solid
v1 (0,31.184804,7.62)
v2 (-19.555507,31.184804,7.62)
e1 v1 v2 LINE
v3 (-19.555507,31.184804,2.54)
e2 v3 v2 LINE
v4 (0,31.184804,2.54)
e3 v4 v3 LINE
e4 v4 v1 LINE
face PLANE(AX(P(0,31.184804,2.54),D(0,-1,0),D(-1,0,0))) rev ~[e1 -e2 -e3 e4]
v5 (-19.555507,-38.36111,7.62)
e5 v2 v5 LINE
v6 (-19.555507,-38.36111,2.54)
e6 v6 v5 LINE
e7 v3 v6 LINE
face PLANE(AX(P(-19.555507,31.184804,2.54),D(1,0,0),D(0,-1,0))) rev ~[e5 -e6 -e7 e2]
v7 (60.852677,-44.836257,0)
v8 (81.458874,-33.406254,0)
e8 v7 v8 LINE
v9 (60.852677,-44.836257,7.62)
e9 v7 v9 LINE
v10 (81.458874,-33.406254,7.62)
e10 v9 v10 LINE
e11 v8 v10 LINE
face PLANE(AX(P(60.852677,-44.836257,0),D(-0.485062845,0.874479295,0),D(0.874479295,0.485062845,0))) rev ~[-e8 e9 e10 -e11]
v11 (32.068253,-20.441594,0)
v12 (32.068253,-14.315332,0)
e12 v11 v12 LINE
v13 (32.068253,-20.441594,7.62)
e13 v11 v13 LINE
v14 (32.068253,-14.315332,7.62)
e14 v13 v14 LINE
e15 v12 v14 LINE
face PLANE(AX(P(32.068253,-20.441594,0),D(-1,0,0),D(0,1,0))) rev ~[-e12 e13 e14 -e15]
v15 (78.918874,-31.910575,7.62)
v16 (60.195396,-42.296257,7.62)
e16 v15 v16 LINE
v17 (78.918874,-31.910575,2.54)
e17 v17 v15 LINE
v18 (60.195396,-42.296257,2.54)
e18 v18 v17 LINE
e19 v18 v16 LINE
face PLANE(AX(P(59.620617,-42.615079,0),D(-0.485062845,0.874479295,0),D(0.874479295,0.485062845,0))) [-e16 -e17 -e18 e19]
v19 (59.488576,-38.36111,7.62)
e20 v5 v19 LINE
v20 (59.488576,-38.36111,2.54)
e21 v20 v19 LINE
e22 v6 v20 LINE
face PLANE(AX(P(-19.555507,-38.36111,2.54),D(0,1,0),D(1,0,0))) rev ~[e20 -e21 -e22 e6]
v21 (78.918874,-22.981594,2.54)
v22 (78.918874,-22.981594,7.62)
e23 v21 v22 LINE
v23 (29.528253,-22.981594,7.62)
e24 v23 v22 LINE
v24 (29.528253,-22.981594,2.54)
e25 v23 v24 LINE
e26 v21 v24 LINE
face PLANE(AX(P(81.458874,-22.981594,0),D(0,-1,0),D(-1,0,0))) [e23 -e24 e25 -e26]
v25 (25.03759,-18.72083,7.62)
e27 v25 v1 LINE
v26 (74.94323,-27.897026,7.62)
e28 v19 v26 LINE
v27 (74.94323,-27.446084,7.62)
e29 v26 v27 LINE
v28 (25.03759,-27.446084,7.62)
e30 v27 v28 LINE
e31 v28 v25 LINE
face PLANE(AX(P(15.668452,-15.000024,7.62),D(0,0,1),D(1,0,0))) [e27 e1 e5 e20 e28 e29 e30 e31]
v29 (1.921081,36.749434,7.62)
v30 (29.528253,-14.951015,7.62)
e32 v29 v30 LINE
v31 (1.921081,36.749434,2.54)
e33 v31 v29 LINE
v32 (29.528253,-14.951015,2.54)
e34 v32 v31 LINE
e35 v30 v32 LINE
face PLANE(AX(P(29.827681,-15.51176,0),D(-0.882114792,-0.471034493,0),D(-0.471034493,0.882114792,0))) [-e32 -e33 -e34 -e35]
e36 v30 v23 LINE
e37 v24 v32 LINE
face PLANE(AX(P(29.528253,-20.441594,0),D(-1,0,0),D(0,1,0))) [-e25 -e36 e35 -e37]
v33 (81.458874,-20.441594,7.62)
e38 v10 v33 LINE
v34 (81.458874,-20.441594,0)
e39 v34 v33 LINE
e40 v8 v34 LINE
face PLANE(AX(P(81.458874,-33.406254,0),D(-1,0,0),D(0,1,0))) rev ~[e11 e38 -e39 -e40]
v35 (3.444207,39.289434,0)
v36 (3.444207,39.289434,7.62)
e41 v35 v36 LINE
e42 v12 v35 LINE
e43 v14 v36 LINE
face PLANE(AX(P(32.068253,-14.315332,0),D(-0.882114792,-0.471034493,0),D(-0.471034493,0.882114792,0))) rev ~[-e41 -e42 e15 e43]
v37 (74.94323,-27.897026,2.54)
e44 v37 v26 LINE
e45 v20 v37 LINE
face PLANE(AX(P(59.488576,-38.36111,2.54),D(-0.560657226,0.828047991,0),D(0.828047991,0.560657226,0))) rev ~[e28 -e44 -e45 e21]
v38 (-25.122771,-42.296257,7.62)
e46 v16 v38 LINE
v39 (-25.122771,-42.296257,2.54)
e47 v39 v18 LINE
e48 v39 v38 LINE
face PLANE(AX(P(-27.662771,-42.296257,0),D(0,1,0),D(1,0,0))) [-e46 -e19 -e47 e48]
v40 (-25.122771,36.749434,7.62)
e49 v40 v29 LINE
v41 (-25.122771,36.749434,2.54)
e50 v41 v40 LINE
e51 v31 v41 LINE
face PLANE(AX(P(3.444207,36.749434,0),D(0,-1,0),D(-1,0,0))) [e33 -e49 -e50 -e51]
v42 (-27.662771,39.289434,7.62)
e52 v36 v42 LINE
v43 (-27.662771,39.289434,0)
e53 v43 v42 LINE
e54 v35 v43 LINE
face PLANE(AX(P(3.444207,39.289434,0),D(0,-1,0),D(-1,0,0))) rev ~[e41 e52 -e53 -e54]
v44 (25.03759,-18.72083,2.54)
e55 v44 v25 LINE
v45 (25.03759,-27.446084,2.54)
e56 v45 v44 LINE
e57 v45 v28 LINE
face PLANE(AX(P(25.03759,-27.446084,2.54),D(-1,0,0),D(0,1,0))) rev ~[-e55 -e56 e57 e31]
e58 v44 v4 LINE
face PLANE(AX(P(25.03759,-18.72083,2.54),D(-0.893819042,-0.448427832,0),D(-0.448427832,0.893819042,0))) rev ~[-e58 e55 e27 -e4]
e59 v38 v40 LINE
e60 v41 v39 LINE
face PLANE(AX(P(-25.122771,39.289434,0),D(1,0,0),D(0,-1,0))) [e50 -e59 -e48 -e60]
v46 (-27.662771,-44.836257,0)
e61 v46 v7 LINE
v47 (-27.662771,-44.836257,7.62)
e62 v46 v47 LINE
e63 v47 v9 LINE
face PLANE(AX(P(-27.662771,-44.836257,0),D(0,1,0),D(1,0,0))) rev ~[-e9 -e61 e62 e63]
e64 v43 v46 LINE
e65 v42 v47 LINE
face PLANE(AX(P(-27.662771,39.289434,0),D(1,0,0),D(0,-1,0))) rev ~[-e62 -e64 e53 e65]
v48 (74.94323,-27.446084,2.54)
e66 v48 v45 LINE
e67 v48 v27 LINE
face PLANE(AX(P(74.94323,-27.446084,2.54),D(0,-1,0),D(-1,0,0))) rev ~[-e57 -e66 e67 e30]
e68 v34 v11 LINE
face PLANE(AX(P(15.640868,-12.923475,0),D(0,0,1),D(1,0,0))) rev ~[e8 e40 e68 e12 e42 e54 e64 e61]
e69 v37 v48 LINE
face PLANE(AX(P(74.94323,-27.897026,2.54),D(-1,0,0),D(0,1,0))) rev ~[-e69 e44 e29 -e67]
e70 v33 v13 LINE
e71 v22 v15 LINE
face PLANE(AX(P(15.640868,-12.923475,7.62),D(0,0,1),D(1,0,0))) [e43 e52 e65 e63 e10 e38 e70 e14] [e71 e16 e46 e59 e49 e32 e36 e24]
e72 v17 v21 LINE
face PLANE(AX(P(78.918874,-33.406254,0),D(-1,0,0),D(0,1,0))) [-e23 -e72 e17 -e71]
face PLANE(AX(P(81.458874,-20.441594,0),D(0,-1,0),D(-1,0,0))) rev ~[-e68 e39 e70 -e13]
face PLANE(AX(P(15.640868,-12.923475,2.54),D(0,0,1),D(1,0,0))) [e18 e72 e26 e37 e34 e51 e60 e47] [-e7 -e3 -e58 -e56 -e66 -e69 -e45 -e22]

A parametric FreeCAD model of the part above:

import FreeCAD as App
import Part
import Sketcher
from FreeCAD import Vector
Q = App.Units.Quantity


def faces_at(feature, points):
    """Names of the faces that lie closest to the given points."""
    faces = feature.Shape.Faces
    near = lambda p: min(range(len(faces)), key=lambda i: faces[i].distToShape(Part.Vertex(*p))[0])
    return sorted({f"Face{near(p) + 1}" for p in points})

doc = App.newDocument("Part")
body = doc.addObject("PartDesign::Body", "Body")

# Sketch on XY plane
sketch1 = doc.addObject("Sketcher::SketchObject", "Sketch")
body.addObject(sketch1)
sketch1.AttachmentSupport = (doc.XY_Plane, [""])
sketch1.MapMode = "FlatFace"
sketch1.addGeometry([
    Part.LineSegment(Vector(32, -14, 0), Vector(3, 39, 0)),  # 0
    Part.LineSegment(Vector(3, 39, 0), Vector(-28, 39, 0)),  # 1
    Part.LineSegment(Vector(-28, 39, 0), Vector(-28, -45, 0)),  # 2
    Part.LineSegment(Vector(-28, -45, 0), Vector(61, -45, 0)),  # 3
    Part.LineSegment(Vector(61, -45, 0), Vector(81, -33, 0)),  # 4
    Part.LineSegment(Vector(81, -33, 0), Vector(81, -20, 0)),  # 5
    Part.LineSegment(Vector(81, -20, 0), Vector(32, -20, 0)),  # 6
    Part.LineSegment(Vector(32, -20, 0), Vector(32, -14, 0)),  # 7
], False)
sketch1.addConstraint([
    Sketcher.Constraint("Coincident", 0, 2, 1, 1),
    Sketcher.Constraint("Coincident", 1, 2, 2, 1),
    Sketcher.Constraint("Coincident", 2, 2, 3, 1),
    Sketcher.Constraint("Coincident", 3, 2, 4, 1),
    Sketcher.Constraint("Coincident", 4, 2, 5, 1),
    Sketcher.Constraint("Coincident", 5, 2, 6, 1),
    Sketcher.Constraint("Coincident", 6, 2, 7, 1),
    Sketcher.Constraint("Coincident", 7, 2, 0, 1),
    Sketcher.Constraint("Horizontal", 1),
    Sketcher.Constraint("Vertical", 2),
    Sketcher.Constraint("Horizontal", 3),
    Sketcher.Constraint("Vertical", 5),
    Sketcher.Constraint("Horizontal", 6),
    Sketcher.Constraint("Vertical", 7),
    Sketcher.Constraint("DistanceY", 3, 2, 4, 2, Q("0.4500001 in")),
    Sketcher.Constraint("DistanceX", 1, 2, 1, 1, 31.106978),
    Sketcher.Constraint("DistanceX", 6, 2, 6, 1, 49.390621),
    Sketcher.Constraint("DistanceY", 2, 2, 2, 1, 84.12569),
    Sketcher.Constraint("DistanceY", 5, 1, 5, 2, 12.96466),
    Sketcher.Constraint("DistanceY", 7, 1, 7, 2, 6.126261),
    Sketcher.Constraint("Distance", 0, 60.768469),
    Sketcher.Constraint("DistanceX", 3, 1, 3, 2, 88.515447),
    Sketcher.Constraint("DistanceX", 1, 2, -1, 1, 27.662771),
    Sketcher.Constraint("DistanceY", -1, 1, 0, 2, 39.289434),
])
pad1 = doc.addObject("PartDesign::Pad", "Pad")
body.addObject(pad1)
pad1.Profile = sketch1
pad1.Length = Q("0.3 in")
doc.recompute()

thickness = doc.addObject("PartDesign::Thickness", "Thickness")
body.addObject(thickness)
thickness.Base = (pad1, faces_at(pad1, [(5.074, -19.599, 7.62)]))
thickness.Value = Q("0.1 in")
thickness.Reversed = True
thickness.Join = "Intersection"

# Sketch on XY plane
sketch2 = doc.addObject("Sketcher::SketchObject", "Sketch001")
body.addObject(sketch2)
sketch2.AttachmentSupport = (doc.XY_Plane, [""])
sketch2.MapMode = "FlatFace"
sketch2.AttachmentOffset = App.Placement(Vector(0, 0, 0.1 * 25.4), App.Rotation())
sketch2.addGeometry([
    Part.LineSegment(Vector(25.04, -18.72, 0), Vector(0, 31.18, 0)),  # 0
    Part.LineSegment(Vector(0, 31.18, 0), Vector(-19.56, 31.18, 0)),  # 1
    Part.LineSegment(Vector(-19.56, 31.18, 0), Vector(-19.56, -38.36, 0)),  # 2
    Part.LineSegment(Vector(-19.56, -38.36, 0), Vector(59.49, -38.36, 0)),  # 3
    Part.LineSegment(Vector(59.49, -38.36, 0), Vector(74.94, -27.9, 0)),  # 4
    Part.LineSegment(Vector(74.94, -27.9, 0), Vector(74.94, -27.45, 0)),  # 5
    Part.LineSegment(Vector(74.94, -27.45, 0), Vector(25.04, -27.45, 0)),  # 6
    Part.LineSegment(Vector(25.04, -27.45, 0), Vector(25.04, -18.72, 0)),  # 7
], False)
sketch2.addConstraint([
    Sketcher.Constraint("Coincident", 0, 2, 1, 1),
    Sketcher.Constraint("Coincident", 1, 2, 2, 1),
    Sketcher.Constraint("Coincident", 2, 2, 3, 1),
    Sketcher.Constraint("Coincident", 3, 2, 4, 1),
    Sketcher.Constraint("Coincident", 4, 2, 5, 1),
    Sketcher.Constraint("Coincident", 5, 2, 6, 1),
    Sketcher.Constraint("Coincident", 6, 2, 7, 1),
    Sketcher.Constraint("Coincident", 7, 2, 0, 1),
    Sketcher.Constraint("Horizontal", 1),
    Sketcher.Constraint("Vertical", 2),
    Sketcher.Constraint("Horizontal", 3),
    Sketcher.Constraint("Vertical", 5),
    Sketcher.Constraint("Horizontal", 6),
    Sketcher.Constraint("Vertical", 7),
    Sketcher.Constraint("PointOnObject", 0, 2, -2),
    Sketcher.Constraint("DistanceX", 6, 2, 6, 1, 49.905639),
    Sketcher.Constraint("Distance", 4, 18.663959),
    Sketcher.Constraint("DistanceX", 1, 2, 1, 1, 19.555507),
    Sketcher.Constraint("DistanceX", 3, 1, 3, 2, 79.044083),
    Sketcher.Constraint("DistanceY", 2, 2, 2, 1, 69.545913),
    Sketcher.Constraint("DistanceY", 5, 1, 5, 2, 0.450942),
    Sketcher.Constraint("DistanceY", 7, 1, 7, 2, 8.725254),
    Sketcher.Constraint("DistanceY", 2, 2, -1, 1, 38.36111),
    Sketcher.Constraint("DistanceX", -1, 1, 4, 2, 74.94323),
])
pad2 = doc.addObject("PartDesign::Pad", "Pad001")
body.addObject(pad2)
pad2.Profile = sketch2
pad2.Length = Q("0.2 in")

doc.recompute()
